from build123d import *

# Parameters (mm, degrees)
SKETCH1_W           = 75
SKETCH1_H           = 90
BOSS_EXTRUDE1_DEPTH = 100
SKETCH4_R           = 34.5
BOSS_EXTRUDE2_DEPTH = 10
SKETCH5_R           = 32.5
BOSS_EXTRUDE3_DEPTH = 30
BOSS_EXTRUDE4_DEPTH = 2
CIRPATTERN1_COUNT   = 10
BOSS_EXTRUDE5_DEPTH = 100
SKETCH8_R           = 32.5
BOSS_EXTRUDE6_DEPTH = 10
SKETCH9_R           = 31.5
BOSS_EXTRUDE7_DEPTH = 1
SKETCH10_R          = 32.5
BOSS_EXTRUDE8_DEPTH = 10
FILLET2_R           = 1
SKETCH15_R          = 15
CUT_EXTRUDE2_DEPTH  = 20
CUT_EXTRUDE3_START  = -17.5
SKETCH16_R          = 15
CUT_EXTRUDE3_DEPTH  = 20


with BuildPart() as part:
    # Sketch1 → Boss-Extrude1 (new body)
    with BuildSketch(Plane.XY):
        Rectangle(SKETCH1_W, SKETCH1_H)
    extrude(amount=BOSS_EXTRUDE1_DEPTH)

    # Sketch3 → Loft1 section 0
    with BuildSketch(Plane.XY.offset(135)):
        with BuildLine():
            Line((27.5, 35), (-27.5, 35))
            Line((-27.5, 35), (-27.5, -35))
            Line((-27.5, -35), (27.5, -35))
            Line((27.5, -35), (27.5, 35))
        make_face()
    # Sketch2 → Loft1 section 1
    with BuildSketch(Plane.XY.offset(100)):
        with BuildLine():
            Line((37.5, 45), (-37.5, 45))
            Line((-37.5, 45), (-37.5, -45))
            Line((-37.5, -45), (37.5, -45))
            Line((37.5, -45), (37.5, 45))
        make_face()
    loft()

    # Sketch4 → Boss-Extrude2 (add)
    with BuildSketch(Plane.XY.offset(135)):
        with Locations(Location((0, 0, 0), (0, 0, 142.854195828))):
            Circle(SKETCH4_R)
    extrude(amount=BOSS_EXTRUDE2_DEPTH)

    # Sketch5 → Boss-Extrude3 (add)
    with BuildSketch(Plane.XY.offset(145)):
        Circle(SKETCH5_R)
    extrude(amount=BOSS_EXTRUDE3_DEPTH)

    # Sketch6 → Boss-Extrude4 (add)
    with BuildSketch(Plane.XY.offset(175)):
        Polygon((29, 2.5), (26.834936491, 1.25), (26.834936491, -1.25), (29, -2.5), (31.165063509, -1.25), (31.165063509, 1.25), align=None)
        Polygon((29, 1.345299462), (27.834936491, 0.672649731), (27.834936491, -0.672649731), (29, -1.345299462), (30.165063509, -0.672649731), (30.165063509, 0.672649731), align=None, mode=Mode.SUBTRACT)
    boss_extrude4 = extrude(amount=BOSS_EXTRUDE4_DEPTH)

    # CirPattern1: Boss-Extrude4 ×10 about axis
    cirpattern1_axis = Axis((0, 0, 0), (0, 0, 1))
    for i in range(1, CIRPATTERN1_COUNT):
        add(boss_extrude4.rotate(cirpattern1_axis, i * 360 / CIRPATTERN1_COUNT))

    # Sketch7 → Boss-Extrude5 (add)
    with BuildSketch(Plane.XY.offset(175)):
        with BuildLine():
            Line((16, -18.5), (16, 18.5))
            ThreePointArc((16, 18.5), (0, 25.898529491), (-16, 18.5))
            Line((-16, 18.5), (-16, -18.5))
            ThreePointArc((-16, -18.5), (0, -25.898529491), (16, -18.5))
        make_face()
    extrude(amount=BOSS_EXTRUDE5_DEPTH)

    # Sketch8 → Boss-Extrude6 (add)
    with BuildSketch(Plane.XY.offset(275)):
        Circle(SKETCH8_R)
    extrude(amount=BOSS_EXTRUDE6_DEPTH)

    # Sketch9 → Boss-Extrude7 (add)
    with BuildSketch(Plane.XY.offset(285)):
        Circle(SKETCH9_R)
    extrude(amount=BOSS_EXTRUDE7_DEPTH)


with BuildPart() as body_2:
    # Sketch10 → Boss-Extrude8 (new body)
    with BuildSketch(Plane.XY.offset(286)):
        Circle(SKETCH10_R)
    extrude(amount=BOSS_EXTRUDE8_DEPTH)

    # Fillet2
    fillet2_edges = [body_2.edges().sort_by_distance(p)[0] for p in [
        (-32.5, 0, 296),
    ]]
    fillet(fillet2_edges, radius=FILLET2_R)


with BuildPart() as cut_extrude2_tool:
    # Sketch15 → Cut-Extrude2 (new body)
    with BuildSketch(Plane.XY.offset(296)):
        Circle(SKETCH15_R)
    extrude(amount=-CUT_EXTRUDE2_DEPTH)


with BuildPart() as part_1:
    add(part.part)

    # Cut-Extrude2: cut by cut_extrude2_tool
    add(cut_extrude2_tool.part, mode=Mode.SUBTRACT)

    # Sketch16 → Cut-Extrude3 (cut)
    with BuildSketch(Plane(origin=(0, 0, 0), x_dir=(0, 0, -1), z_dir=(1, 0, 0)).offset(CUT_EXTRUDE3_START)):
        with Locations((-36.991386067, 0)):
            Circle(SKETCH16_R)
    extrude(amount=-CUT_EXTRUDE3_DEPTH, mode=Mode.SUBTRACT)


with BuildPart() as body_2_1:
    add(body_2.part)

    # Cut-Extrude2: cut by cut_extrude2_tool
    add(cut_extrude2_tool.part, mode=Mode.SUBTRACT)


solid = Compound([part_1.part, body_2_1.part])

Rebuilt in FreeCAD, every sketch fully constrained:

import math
import FreeCAD as App
import Part
import Sketcher
Q = App.Units.Quantity


def edges_at(feature, points):
    """Names of the edges that pass closest to the given points."""
    edges = feature.Shape.Edges
    near = lambda p: min(range(len(edges)), key=lambda i: edges[i].distToShape(Part.Vertex(*p))[0])
    return sorted({f"Edge{near(p) + 1}" for p in points})


def add_polygon(sketch, points):
    """Adds a closed chain of lines whose ends are joined by coincident constraints."""
    first, n = sketch.GeometryCount, len(points)
    for a, b in zip(points, points[1:] + points[:1]):
        sketch.addGeometry(Part.LineSegment(App.Vector(*a, 0), App.Vector(*b, 0)), False)
    for i in range(n):
        sketch.addConstraint(Sketcher.Constraint("Coincident", first + i, 2, first + (i + 1) % n, 1))

doc = App.newDocument("Part")
body = doc.addObject("PartDesign::Body", "Body")

sketch1 = body.newObject("Sketcher::SketchObject", "Sketch")
sketch1.AttachmentSupport = (doc.getObject("XY_Plane"), [""])
sketch1.MapMode = "FlatFace"
add_polygon(sketch1, [(-38, 45), (-38, -45), (38, -45), (38, 45)])
sketch1.addConstraint([
    Sketcher.Constraint("Vertical", 0),
    Sketcher.Constraint("Horizontal", 1),
    Sketcher.Constraint("Vertical", 2),
    Sketcher.Constraint("Horizontal", 3),
    Sketcher.Constraint("Symmetric", 0, 2, 2, 2, -1, 1),
    Sketcher.Constraint("DistanceX", 1, 1, 1, 2, 75.0),
    Sketcher.Constraint("DistanceY", 0, 2, 0, 1, 90.0),
])
pad1 = body.newObject("PartDesign::Pad", "Pad")
pad1.Profile = sketch1
pad1.Length = 100

sketch2 = body.newObject("Sketcher::SketchObject", "Sketch001")
sketch2.AttachmentSupport = (doc.getObject("XY_Plane"), [""])
sketch2.MapMode = "FlatFace"
sketch2.AttachmentOffset = App.Placement(App.Vector(0, 0, 135), App.Rotation())
add_polygon(sketch2, [(28, 35), (-28, 35), (-28, -35), (28, -35)])
sketch2.addConstraint([
    Sketcher.Constraint("Horizontal", 0),
    Sketcher.Constraint("Vertical", 1),
    Sketcher.Constraint("Horizontal", 2),
    Sketcher.Constraint("Vertical", 3),
    Sketcher.Constraint("Symmetric", 0, 2, 2, 2, -1, 1),
    Sketcher.Constraint("DistanceX", 0, 2, 0, 1, 55.0),
    Sketcher.Constraint("DistanceY", 1, 2, 1, 1, 70.0),
])

sketch3 = body.newObject("Sketcher::SketchObject", "Sketch002")
sketch3.AttachmentSupport = (doc.getObject("XY_Plane"), [""])
sketch3.MapMode = "FlatFace"
sketch3.AttachmentOffset = App.Placement(App.Vector(0, 0, 100), App.Rotation())
add_polygon(sketch3, [(38, 45), (-38, 45), (-38, -45), (38, -45)])
sketch3.addConstraint([
    Sketcher.Constraint("Horizontal", 0),
    Sketcher.Constraint("Vertical", 1),
    Sketcher.Constraint("Horizontal", 2),
    Sketcher.Constraint("Vertical", 3),
    Sketcher.Constraint("Symmetric", 0, 2, 2, 2, -1, 1),
    Sketcher.Constraint("DistanceX", 0, 2, 0, 1, 75.0),
    Sketcher.Constraint("DistanceY", 1, 2, 1, 1, 90.0),
])

additiveloft = body.newObject("PartDesign::AdditiveLoft", "AdditiveLoft")
additiveloft.Profile = sketch2
additiveloft.Sections = [sketch3]

sketch4 = body.newObject("Sketcher::SketchObject", "Sketch003")
sketch4.AttachmentSupport = (doc.getObject("XY_Plane"), [""])
sketch4.MapMode = "FlatFace"
sketch4.AttachmentOffset = App.Placement(App.Vector(0, 0, 135), App.Rotation())
sketch4.addGeometry(Part.Circle(App.Vector(0, 0, 0), App.Vector(0, 0, 1), 34), False)
sketch4.addConstraint([
    Sketcher.Constraint("Coincident", 0, 3, -1, 1),
    Sketcher.Constraint("Diameter", 0, 69.0),
])
pad2 = body.newObject("PartDesign::Pad", "Pad001")
pad2.Profile = sketch4
pad2.Length = 10

sketch5 = body.newObject("Sketcher::SketchObject", "Sketch004")
sketch5.AttachmentSupport = (doc.getObject("XY_Plane"), [""])
sketch5.MapMode = "FlatFace"
sketch5.AttachmentOffset = App.Placement(App.Vector(0, 0, 145), App.Rotation())
sketch5.addGeometry(Part.Circle(App.Vector(0, 0, 0), App.Vector(0, 0, 1), 32), False)
sketch5.addConstraint([
    Sketcher.Constraint("Coincident", 0, 3, -1, 1),
    Sketcher.Constraint("Diameter", 0, 65.0),
])
pad3 = body.newObject("PartDesign::Pad", "Pad002")
pad3.Profile = sketch5
pad3.Length = 30

sketch6 = body.newObject("Sketcher::SketchObject", "Sketch005")
sketch6.AttachmentSupport = (doc.getObject("XY_Plane"), [""])
sketch6.MapMode = "FlatFace"
sketch6.AttachmentOffset = App.Placement(App.Vector(0, 0, 175), App.Rotation())
add_polygon(sketch6, [(29, 2.5), (26.8, 1.2), (26.8, -1.2), (29, -2.5), (31.2, -1.2), (31.2, 1.2)])
add_polygon(sketch6, [(27.8, 0.7), (29, 1.3), (30.2, 0.7), (30.2, -0.7), (29, -1.3), (27.8, -0.7)])
sketch6.addConstraint([
    Sketcher.Constraint("Vertical", 1),
    Sketcher.Constraint("Vertical", 4),
    Sketcher.Constraint("Vertical", 8),
    Sketcher.Constraint("Vertical", 11),
    Sketcher.Constraint("Symmetric", 2, 2, 5, 2, -1),
    Sketcher.Constraint("Symmetric", 6, 2, 9, 2, -1),
    Sketcher.Constraint("Parallel", 0, 3),
    Sketcher.Constraint("Parallel", 2, 5),
    Sketcher.Constraint("Parallel", 3, 6),
    Sketcher.Constraint("Parallel", 5, 7),
    Sketcher.Constraint("Parallel", 6, 9),
    Sketcher.Constraint("Parallel", 7, 10),
    Sketcher.Constraint("Horizontal", 1, 2, 3, 2),
    Sketcher.Constraint("Horizontal", 0, 2, 4, 2),
    Sketcher.Constraint("Horizontal", 8, 2, 10, 2),
    Sketcher.Constraint("Vertical", 5, 2, 6, 2),
    Sketcher.Constraint("Angle", 0, Q("-150 deg")),
    Sketcher.Constraint("DistanceY", 1, 2, 1, 1, 2.5),
    Sketcher.Constraint("DistanceX", -1, 1, 2, 2, 29.0),
    Sketcher.Constraint("DistanceY", 2, 2, 5, 2, 5.0),
    Sketcher.Constraint("DistanceX", 7, 2, 4, 2, 1.0),
    Sketcher.Constraint("DistanceY", 8, 2, 8, 1, 1.345299),
])
pad4 = body.newObject("PartDesign::Pad", "Pad003")
pad4.Profile = sketch6
pad4.Length = 2
doc.recompute()

polarpattern = body.newObject("PartDesign::PolarPattern", "PolarPattern")
polarpattern.Originals = [pad4]
polarpattern.Axis = (doc.getObject("Z_Axis"), [""])
polarpattern.Angle = 360
polarpattern.Occurrences = 10
body.Tip = polarpattern

sketch7 = body.newObject("Sketcher::SketchObject", "Sketch006")
sketch7.AttachmentSupport = (doc.getObject("XY_Plane"), [""])
sketch7.MapMode = "FlatFace"
sketch7.AttachmentOffset = App.Placement(App.Vector(0, 0, 175), App.Rotation())
sketch7.addGeometry([
    Part.LineSegment(App.Vector(16, -18, 0), App.Vector(16, 18, 0)),
    Part.ArcOfCircle(Part.Circle(App.Vector(0, 5, 0), App.Vector(0, 0, 1), 21), math.radians(40), math.radians(140)),
    Part.LineSegment(App.Vector(-16, 18, 0), App.Vector(-16, -18, 0)),
    Part.ArcOfCircle(Part.Circle(App.Vector(0, -5, 0), App.Vector(0, 0, 1), 21), math.radians(-140), math.radians(-40)),
], False)
sketch7.addConstraint([
    Sketcher.Constraint("Coincident", 0, 2, 1, 1),
    Sketcher.Constraint("Coincident", 1, 2, 2, 1),
    Sketcher.Constraint("Coincident", 2, 2, 3, 1),
    Sketcher.Constraint("Coincident", 3, 2, 0, 1),
    Sketcher.Constraint("Vertical", 0),
    Sketcher.Constraint("Vertical", 2),
    Sketcher.Constraint("Equal", 1, 3),
    Sketcher.Constraint("Symmetric", 1, 3, 3, 3, -1, 1),
    Sketcher.Constraint("Symmetric", 0, 2, 1, 2, -2),
    Sketcher.Constraint("Radius", 1, 21.0),
    Sketcher.Constraint("DistanceY", 0, 1, 0, 2, 37.0),
    Sketcher.Constraint("DistanceX", -1, 1, 0, 2, 16.0),
])
pad5 = body.newObject("PartDesign::Pad", "Pad004")
pad5.Profile = sketch7
pad5.Length = 100

sketch8 = body.newObject("Sketcher::SketchObject", "Sketch007")
sketch8.AttachmentSupport = (doc.getObject("XY_Plane"), [""])
sketch8.MapMode = "FlatFace"
sketch8.AttachmentOffset = App.Placement(App.Vector(0, 0, 275), App.Rotation())
sketch8.addGeometry(Part.Circle(App.Vector(0, 0, 0), App.Vector(0, 0, 1), 32), False)
sketch8.addConstraint([
    Sketcher.Constraint("Coincident", 0, 3, -1, 1),
    Sketcher.Constraint("Diameter", 0, 65.0),
])
pad6 = body.newObject("PartDesign::Pad", "Pad005")
pad6.Profile = sketch8
pad6.Length = 10

sketch9 = body.newObject("Sketcher::SketchObject", "Sketch008")
sketch9.AttachmentSupport = (doc.getObject("XY_Plane"), [""])
sketch9.MapMode = "FlatFace"
sketch9.AttachmentOffset = App.Placement(App.Vector(0, 0, 285), App.Rotation())
sketch9.addGeometry(Part.Circle(App.Vector(0, 0, 0), App.Vector(0, 0, 1), 32), False)
sketch9.addConstraint([
    Sketcher.Constraint("Coincident", 0, 3, -1, 1),
    Sketcher.Constraint("Diameter", 0, 63.0),
])
pad7 = body.newObject("PartDesign::Pad", "Pad006")
pad7.Profile = sketch9
pad7.Length = 1
body2 = doc.addObject("PartDesign::Body", "Body001")

sketch10 = body2.newObject("Sketcher::SketchObject", "Sketch009")
sketch10.AttachmentSupport = (doc.getObject("XY_Plane001"), [""])
sketch10.MapMode = "FlatFace"
sketch10.AttachmentOffset = App.Placement(App.Vector(0, 0, 286), App.Rotation())
sketch10.addGeometry(Part.Circle(App.Vector(0, 0, 0), App.Vector(0, 0, 1), 32), False)
sketch10.addConstraint([
    Sketcher.Constraint("Coincident", 0, 3, -1, 1),
    Sketcher.Constraint("Diameter", 0, 65.0),
])
pad8 = body2.newObject("PartDesign::Pad", "Pad007")
pad8.Profile = sketch10
pad8.Length = 10
doc.recompute()

fillet = body2.newObject("PartDesign::Fillet", "Fillet")
fillet.Base = (pad8, edges_at(pad8, [(-32.5, 0, 296)]))
fillet.Radius = 1
body3 = doc.addObject("PartDesign::Body", "Body002")

sketch11 = body3.newObject("Sketcher::SketchObject", "Sketch010")
sketch11.AttachmentSupport = (doc.getObject("XY_Plane002"), [""])
sketch11.MapMode = "FlatFace"
sketch11.AttachmentOffset = App.Placement(App.Vector(0, 0, 296), App.Rotation())
sketch11.addGeometry(Part.Circle(App.Vector(0, 0, 0), App.Vector(0, 0, 1), 15), False)
sketch11.addConstraint([
    Sketcher.Constraint("Coincident", 0, 3, -1, 1),
    Sketcher.Constraint("Diameter", 0, 30.0),
])
pad9 = body3.newObject("PartDesign::Pad", "Pad008")
pad9.Profile = sketch11
pad9.Length = 20
pad9.Reversed = True
doc.recompute()

body4 = doc.addObject("PartDesign::Body", "Body003")
body4.BaseFeature = body3
boolean = body.newObject("PartDesign::Boolean", "Boolean")
boolean.Type = "Cut"
boolean.addObjects([body4])
doc.recompute()

sketch12 = body.newObject("Sketcher::SketchObject", "Sketch011")
sketch12.AttachmentSupport = (doc.getObject("YZ_Plane"), [""])
sketch12.MapMode = "FlatFace"
sketch12.AttachmentOffset = App.Placement(App.Vector(0, 0, -17.5), App.Rotation())
sketch12.addGeometry(Part.Circle(App.Vector(0, 37, 0), App.Vector(0, 0, 1), 15), False)
sketch12.addConstraint([
    Sketcher.Constraint("PointOnObject", 0, 3, -2),
    Sketcher.Constraint("Diameter", 0, 30.0),
    Sketcher.Constraint("DistanceY", -1, 1, 0, 3, 36.991386),
])
pocket1 = body.newObject("PartDesign::Pocket", "Pocket")
pocket1.Profile = sketch12
pocket1.Length = 20
doc.recompute()

boolean2 = body2.newObject("PartDesign::Boolean", "Boolean001")
boolean2.Type = "Cut"
boolean2.addObjects([body3])

doc.recompute()
